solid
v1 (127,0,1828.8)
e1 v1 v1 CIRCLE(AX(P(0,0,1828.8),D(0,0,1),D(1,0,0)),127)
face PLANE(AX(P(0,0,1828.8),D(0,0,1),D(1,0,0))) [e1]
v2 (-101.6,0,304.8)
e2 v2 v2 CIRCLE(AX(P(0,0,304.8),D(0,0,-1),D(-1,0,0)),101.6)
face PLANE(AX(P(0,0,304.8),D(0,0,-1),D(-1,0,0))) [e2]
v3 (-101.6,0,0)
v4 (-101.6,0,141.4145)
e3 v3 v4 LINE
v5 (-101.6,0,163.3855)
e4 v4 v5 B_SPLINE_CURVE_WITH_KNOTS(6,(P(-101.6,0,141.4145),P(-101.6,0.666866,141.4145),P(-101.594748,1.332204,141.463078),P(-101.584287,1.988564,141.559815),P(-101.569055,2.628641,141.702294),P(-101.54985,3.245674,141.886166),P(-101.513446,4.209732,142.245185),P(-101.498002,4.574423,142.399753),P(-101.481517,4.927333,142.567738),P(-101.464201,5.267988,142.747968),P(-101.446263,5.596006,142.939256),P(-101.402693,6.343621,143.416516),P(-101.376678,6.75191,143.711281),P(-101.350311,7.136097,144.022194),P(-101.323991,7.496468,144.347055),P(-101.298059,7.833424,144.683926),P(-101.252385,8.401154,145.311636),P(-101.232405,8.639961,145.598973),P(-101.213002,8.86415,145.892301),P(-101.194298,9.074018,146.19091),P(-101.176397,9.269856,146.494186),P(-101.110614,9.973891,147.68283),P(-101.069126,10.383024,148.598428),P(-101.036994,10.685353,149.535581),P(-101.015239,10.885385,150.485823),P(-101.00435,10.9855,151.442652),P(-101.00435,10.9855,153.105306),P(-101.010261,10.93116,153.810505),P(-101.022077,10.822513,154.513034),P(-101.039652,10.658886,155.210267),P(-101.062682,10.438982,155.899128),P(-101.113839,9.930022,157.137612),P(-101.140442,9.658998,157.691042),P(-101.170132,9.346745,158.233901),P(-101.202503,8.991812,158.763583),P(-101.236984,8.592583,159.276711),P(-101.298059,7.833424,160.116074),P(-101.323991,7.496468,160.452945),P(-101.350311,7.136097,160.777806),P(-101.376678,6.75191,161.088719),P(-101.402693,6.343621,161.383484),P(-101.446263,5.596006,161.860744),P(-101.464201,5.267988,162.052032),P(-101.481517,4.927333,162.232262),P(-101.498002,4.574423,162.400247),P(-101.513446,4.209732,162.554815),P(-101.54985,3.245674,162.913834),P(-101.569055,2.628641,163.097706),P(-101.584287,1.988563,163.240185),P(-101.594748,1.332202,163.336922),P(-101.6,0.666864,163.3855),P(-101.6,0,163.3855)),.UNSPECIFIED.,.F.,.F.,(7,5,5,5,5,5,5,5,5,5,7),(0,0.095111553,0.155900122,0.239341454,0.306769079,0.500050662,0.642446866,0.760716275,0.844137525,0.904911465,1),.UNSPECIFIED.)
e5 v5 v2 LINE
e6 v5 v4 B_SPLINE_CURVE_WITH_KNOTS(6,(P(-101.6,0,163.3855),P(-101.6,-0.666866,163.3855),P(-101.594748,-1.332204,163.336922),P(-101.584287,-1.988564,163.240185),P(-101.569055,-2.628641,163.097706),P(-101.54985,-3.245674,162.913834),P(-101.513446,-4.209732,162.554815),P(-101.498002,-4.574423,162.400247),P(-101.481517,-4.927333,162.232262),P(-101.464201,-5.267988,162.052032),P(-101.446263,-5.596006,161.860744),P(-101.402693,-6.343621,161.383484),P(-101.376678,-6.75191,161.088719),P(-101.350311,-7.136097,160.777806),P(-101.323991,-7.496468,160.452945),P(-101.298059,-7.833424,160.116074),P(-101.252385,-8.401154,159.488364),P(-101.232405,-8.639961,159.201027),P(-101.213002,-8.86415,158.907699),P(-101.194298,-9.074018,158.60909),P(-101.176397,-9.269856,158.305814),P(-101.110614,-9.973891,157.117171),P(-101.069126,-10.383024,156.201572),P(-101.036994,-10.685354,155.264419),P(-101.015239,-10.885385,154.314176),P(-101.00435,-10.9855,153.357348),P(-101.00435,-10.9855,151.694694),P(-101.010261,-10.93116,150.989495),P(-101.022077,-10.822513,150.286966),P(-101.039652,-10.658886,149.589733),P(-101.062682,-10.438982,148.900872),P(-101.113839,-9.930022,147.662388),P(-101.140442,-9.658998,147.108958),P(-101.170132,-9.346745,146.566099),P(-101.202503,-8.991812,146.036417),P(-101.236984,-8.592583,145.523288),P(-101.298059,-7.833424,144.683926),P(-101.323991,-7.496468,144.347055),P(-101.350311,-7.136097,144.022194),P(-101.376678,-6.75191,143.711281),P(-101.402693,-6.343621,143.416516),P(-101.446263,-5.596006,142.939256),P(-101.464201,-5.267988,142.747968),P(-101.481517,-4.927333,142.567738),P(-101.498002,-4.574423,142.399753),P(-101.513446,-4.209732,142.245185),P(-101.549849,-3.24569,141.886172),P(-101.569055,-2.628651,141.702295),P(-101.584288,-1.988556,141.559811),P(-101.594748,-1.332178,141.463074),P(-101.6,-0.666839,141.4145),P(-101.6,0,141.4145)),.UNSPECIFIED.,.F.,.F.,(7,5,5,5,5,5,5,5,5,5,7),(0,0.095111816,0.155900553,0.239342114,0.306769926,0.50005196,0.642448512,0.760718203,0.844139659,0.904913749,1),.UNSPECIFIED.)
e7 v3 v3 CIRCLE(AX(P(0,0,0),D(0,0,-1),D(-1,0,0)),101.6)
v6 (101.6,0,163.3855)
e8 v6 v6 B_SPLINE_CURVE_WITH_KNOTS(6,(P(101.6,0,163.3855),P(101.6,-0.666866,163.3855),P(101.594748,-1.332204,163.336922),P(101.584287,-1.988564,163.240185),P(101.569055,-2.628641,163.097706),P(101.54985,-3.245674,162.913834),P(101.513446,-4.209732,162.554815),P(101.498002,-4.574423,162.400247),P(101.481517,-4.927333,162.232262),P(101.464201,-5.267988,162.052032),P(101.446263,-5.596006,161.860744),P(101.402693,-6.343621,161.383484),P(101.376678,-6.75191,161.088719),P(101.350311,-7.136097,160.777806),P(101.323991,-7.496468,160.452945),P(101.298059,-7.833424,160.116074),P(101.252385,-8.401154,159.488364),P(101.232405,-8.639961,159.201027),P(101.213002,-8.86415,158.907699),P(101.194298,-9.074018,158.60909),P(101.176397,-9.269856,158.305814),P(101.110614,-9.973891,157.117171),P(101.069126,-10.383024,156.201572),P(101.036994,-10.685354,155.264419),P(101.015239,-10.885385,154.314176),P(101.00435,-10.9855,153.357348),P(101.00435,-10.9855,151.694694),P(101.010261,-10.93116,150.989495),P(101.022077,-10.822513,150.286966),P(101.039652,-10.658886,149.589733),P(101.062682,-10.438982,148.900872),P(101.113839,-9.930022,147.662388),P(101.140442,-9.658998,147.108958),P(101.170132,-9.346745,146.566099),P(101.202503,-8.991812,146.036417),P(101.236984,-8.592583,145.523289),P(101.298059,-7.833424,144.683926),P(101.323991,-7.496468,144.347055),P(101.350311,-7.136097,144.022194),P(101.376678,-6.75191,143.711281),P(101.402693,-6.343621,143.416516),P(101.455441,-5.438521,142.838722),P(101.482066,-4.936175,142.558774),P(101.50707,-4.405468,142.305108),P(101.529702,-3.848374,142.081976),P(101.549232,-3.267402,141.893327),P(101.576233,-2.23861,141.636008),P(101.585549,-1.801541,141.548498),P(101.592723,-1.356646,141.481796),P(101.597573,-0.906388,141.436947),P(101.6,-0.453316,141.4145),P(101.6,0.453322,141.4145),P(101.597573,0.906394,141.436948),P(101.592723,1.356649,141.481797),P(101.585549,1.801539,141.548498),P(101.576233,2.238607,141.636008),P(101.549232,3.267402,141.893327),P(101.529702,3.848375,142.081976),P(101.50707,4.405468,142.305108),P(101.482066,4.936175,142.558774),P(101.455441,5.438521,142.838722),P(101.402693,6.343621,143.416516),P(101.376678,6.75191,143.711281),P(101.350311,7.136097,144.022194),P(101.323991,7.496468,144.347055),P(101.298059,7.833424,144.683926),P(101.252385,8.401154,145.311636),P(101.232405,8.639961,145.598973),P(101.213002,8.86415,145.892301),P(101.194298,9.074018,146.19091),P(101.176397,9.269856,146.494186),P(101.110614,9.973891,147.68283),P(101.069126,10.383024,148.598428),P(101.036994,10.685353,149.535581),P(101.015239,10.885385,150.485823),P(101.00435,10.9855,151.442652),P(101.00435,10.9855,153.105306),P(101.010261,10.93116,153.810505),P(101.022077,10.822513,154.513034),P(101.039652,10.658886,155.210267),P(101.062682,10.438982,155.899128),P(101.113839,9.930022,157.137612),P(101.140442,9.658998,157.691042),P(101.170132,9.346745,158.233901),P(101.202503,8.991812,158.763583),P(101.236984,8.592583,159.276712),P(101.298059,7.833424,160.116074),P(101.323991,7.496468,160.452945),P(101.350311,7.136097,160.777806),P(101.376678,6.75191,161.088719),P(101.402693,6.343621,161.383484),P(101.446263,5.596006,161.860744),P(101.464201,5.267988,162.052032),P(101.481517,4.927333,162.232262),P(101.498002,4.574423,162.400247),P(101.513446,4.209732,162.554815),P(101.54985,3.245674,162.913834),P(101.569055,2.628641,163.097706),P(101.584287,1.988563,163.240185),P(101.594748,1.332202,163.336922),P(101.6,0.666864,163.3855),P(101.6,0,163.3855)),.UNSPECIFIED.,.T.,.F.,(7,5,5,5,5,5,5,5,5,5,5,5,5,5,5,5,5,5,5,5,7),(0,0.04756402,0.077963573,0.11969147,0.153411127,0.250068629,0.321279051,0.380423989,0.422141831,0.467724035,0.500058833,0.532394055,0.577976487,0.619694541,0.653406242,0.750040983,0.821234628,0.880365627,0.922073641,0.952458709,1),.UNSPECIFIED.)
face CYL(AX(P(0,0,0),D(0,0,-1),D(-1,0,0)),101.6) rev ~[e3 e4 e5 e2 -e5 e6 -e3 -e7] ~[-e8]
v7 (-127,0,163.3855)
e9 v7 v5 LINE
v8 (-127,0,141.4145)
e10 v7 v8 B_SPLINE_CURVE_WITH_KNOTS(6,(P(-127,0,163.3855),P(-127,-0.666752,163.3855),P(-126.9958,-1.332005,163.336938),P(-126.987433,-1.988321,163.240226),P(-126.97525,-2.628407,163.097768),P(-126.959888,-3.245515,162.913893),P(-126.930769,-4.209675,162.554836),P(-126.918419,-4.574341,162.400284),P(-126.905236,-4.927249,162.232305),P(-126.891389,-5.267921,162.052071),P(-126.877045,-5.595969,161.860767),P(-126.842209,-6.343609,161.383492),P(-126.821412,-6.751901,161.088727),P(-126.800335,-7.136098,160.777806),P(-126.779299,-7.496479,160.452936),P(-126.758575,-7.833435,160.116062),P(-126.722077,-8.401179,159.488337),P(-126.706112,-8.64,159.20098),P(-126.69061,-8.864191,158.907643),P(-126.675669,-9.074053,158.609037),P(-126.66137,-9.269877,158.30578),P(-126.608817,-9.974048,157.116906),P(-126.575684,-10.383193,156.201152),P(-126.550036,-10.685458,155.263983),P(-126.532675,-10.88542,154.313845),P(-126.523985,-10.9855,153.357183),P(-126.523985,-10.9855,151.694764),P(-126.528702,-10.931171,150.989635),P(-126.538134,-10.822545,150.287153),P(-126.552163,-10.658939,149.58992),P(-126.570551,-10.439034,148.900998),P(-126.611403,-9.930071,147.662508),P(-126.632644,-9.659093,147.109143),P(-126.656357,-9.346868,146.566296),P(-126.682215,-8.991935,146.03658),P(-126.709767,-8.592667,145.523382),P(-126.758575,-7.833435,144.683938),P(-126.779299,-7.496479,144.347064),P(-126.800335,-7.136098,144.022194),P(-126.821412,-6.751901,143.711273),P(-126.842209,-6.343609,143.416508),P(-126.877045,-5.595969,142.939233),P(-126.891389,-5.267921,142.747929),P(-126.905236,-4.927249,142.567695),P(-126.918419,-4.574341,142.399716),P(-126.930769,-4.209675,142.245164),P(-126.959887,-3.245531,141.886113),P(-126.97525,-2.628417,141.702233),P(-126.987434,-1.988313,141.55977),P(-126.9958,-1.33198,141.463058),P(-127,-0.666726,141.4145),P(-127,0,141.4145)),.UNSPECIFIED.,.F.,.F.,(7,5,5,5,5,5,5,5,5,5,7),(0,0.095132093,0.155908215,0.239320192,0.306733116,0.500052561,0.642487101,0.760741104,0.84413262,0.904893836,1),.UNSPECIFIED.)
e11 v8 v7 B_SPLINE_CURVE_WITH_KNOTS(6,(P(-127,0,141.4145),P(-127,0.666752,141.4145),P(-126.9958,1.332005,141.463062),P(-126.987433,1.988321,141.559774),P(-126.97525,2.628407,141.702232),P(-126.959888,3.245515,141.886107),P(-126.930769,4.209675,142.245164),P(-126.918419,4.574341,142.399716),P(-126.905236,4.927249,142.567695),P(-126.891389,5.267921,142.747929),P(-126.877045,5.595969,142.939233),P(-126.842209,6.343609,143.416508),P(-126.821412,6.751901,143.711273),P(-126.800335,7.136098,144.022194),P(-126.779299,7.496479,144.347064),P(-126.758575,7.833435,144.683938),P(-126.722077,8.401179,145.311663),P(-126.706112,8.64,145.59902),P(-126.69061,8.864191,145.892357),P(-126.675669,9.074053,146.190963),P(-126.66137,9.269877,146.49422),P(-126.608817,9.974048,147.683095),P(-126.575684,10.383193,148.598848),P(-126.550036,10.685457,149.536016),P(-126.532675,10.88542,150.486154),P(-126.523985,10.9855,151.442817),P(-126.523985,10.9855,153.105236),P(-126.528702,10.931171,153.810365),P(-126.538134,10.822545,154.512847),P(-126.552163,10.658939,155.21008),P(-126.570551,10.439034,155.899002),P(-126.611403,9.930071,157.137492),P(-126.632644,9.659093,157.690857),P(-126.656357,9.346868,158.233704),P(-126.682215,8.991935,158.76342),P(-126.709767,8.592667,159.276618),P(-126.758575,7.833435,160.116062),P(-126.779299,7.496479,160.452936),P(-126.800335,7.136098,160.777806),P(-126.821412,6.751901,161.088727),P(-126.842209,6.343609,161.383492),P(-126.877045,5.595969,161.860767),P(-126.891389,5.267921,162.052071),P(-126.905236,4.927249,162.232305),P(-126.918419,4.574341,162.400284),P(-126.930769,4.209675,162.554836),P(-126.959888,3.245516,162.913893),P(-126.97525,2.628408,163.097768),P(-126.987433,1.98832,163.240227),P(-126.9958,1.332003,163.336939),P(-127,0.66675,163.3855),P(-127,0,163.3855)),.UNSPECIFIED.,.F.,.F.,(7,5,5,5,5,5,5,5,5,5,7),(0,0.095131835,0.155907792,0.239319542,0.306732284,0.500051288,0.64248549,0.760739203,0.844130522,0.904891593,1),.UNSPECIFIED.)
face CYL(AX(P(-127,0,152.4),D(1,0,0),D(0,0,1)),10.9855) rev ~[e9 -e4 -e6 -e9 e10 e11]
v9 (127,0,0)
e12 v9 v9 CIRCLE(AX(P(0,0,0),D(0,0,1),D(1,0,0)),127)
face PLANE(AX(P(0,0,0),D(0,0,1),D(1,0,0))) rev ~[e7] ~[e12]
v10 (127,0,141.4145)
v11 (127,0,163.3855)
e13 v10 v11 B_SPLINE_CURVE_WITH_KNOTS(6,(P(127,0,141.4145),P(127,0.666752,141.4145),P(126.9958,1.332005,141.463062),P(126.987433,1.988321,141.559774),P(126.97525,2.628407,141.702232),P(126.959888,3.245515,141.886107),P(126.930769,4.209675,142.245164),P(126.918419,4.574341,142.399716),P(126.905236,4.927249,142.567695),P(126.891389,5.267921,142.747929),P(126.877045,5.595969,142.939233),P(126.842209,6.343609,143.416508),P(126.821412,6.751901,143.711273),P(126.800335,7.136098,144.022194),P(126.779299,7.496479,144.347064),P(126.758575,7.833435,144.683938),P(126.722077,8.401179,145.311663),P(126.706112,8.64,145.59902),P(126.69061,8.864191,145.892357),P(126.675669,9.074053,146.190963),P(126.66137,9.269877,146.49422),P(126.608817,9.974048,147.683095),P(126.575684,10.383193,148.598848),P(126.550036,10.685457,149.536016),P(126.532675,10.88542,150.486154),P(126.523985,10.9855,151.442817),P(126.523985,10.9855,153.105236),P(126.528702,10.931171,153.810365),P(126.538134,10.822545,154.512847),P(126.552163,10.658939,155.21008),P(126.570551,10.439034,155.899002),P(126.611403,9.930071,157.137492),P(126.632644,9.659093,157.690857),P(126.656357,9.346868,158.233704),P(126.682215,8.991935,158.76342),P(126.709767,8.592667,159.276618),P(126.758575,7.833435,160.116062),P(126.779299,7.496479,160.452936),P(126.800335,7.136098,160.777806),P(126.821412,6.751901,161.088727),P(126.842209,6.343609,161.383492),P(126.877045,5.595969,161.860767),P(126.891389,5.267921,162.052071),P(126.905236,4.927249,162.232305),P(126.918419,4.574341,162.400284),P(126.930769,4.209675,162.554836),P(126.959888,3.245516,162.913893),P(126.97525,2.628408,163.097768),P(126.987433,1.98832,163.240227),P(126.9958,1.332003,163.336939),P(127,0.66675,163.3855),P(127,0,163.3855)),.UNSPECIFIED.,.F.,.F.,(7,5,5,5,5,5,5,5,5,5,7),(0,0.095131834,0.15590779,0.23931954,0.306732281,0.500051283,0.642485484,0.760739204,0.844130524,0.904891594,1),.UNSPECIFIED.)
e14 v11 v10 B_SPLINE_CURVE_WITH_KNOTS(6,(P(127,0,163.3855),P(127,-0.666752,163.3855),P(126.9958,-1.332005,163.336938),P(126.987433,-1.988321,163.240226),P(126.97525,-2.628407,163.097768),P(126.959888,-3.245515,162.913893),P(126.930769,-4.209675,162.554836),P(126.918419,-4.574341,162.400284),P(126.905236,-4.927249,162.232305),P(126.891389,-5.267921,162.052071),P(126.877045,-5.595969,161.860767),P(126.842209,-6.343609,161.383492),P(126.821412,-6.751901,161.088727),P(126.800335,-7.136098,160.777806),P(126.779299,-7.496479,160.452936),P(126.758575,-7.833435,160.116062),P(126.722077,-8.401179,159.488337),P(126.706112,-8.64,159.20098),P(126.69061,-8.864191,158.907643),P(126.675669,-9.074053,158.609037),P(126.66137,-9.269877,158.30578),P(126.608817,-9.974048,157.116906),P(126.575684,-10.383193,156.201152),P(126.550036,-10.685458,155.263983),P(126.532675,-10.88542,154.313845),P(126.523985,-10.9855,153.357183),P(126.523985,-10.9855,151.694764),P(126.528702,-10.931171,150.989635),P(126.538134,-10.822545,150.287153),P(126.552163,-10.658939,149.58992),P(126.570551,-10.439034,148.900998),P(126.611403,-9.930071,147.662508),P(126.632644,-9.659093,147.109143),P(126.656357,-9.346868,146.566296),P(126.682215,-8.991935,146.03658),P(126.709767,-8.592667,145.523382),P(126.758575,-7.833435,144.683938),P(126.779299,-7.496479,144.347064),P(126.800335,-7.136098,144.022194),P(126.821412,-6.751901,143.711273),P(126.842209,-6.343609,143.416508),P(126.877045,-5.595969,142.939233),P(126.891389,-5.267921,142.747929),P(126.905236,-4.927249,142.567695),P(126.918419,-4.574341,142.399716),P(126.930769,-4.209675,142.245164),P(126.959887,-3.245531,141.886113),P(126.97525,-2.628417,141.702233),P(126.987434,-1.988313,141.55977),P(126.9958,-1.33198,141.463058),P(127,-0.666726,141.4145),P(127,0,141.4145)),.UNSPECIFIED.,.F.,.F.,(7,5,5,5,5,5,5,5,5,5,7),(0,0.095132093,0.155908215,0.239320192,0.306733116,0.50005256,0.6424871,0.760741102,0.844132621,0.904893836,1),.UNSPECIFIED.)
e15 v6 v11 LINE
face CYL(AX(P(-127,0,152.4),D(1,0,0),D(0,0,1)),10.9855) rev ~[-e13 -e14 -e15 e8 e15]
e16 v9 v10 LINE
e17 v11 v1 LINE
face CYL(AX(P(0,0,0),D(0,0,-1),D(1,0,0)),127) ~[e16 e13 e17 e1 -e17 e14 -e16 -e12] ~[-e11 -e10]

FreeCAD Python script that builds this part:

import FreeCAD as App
import Part
import Sketcher
Q = App.Units.Quantity

doc = App.newDocument("Part")
params = doc.addObject("Spreadsheet::Sheet", "Params")
for row, (alias, value) in enumerate([
    ("sketch1_diameter", "10 in"),
    ("pad1_length", "72 in"),
    ("sketch2_diameter", "8 in"),
    ("pocket1_length", "12 in"),
    ("sketch3_diameter", "0.865 in"),
    ("hole_diameter", "0.865 in"),
], start=1):
    params.set(f"A{row}", alias)
    params.set(f"B{row}", "=" + value)
    params.setAlias(f"B{row}", alias)

body = doc.addObject("PartDesign::Body", "Body")

sketch1 = doc.addObject("Sketcher::SketchObject", "Sketch")
body.addObject(sketch1)
sketch1.AttachmentSupport = (doc.XY_Plane, [""])
sketch1.MapMode = "FlatFace"
sketch1.addGeometry(Part.Circle(App.Vector(0, 0, 0), App.Vector(0, 0, 1), 127), False)
sketch1.addConstraint(Sketcher.Constraint("Coincident", 0, 3, -1, 1))
sketch1.addConstraint(Sketcher.Constraint("Diameter", 0, Q("10 in")))
sketch1.setExpression("Constraints[1]", "Params.sketch1_diameter")
pad1 = doc.addObject("PartDesign::Pad", "Pad")
body.addObject(pad1)
pad1.Profile = sketch1
pad1.setExpression("Length", "Params.pad1_length")

sketch2 = doc.addObject("Sketcher::SketchObject", "Sketch001")
body.addObject(sketch2)
sketch2.AttachmentSupport = (doc.XY_Plane, [""])
sketch2.MapMode = "FlatFace"
sketch2.addGeometry(Part.Circle(App.Vector(0, 0, 0), App.Vector(0, 0, 1), 102), False)
sketch2.addConstraint(Sketcher.Constraint("Coincident", 0, 3, -1, 1))
sketch2.addConstraint(Sketcher.Constraint("Diameter", 0, Q("8 in")))
sketch2.setExpression("Constraints[1]", "Params.sketch2_diameter")
pocket1 = doc.addObject("PartDesign::Pocket", "Pocket")
body.addObject(pocket1)
pocket1.Profile = sketch2
pocket1.setExpression("Length", "Params.pocket1_length")
pocket1.Reversed = True

sketch3 = doc.addObject("Sketcher::SketchObject", "Sketch002")
body.addObject(sketch3)
sketch3.AttachmentSupport = (doc.YZ_Plane, [""])
sketch3.MapMode = "FlatFace"
sketch3.AttachmentOffset = App.Placement(App.Vector(0, 0, -5 * 25.4), App.Rotation())
sketch3.addGeometry(Part.Circle(App.Vector(0, 152, 0), App.Vector(0, 0, 1), 11), False)
sketch3.addConstraint(Sketcher.Constraint("PointOnObject", 0, 3, -2))
sketch3.addConstraint(Sketcher.Constraint("Diameter", 0, Q("0.865 in")))
sketch3.addConstraint(Sketcher.Constraint("DistanceY", -1, 1, 0, 3, Q("6 in")))
sketch3.setExpression("Constraints[1]", "Params.sketch3_diameter")
doc.recompute()
hole = doc.addObject("PartDesign::Hole", "Hole")
body.addObject(hole)
hole.Profile = sketch3
hole.ThreadType = "None"
hole.setExpression("Diameter", "Params.hole_diameter")
hole.DepthType = "ThroughAll"
hole.Reversed = True

doc.recompute()
